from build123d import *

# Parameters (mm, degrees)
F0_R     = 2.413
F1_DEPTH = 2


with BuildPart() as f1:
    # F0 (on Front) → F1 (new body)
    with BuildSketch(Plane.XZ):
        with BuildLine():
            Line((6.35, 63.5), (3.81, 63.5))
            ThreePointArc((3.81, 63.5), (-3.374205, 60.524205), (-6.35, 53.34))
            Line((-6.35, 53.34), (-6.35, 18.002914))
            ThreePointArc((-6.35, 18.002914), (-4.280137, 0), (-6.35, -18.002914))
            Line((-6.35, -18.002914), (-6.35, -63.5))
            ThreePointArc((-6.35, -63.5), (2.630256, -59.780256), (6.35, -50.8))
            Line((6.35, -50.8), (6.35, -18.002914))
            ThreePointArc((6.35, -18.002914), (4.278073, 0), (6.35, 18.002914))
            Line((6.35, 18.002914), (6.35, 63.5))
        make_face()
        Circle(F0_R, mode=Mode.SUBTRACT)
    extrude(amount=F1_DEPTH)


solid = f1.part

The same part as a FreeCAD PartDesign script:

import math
import FreeCAD as App
import Part
import Sketcher
from FreeCAD import Vector
Q = App.Units.Quantity

doc = App.newDocument("Part")
body = doc.addObject("PartDesign::Body", "Body")

# Sketch on XZ plane
sketch1 = body.newObject("Sketcher::SketchObject", "Sketch")
sketch1.AttachmentSupport = (doc.getObject("XZ_Plane"), [""])
sketch1.MapMode = "FlatFace"
sketch1.addGeometry([
    Part.LineSegment(Vector(6.3, 63.5, 0), Vector(3.8, 63.5, 0)),  # 0
    Part.ArcOfCircle(Part.Circle(Vector(3.8, 53.3, 0), Vector(0, 0, 1), 10.2), math.radians(90), math.radians(180)),  # 1
    Part.LineSegment(Vector(-6.3, 53.3, 0), Vector(-6.3, 18, 0)),  # 2
    Part.ArcOfCircle(Part.Circle(Vector(-83.6, 0, 0), Vector(0, 0, 1), 79.3), math.radians(-13), math.radians(13)),  # 3
    Part.LineSegment(Vector(-6.3, -18, 0), Vector(-6.3, -63.5, 0)),  # 4
    Part.ArcOfCircle(Part.Circle(Vector(-6.4, -50.8, 0), Vector(0, 0, 1), 12.7), math.radians(-90), math.radians(0)),  # 5
    Part.LineSegment(Vector(6.3, -50.8, 0), Vector(6.3, -18, 0)),  # 6
    Part.ArcOfCircle(Part.Circle(Vector(83.5, 0, 0), Vector(0, 0, 1), 79.2), math.radians(167), math.radians(193)),  # 7
    Part.LineSegment(Vector(6.3, 18, 0), Vector(6.3, 63.5, 0)),  # 8
    Part.Circle(Vector(0, 0, 0), Vector(0, 0, 1), 2.4),  # 9
], False)
sketch1.addConstraint([
    Sketcher.Constraint("Tangent", 0, 2, 1, 1),
    Sketcher.Constraint("Tangent", 1, 2, 2, 1),
    Sketcher.Constraint("Coincident", 2, 2, 3, 2),
    Sketcher.Constraint("Coincident", 3, 1, 4, 1),
    Sketcher.Constraint("Coincident", 4, 2, 5, 1),
    Sketcher.Constraint("Tangent", 5, 2, 6, 1),
    Sketcher.Constraint("Coincident", 6, 2, 7, 2),
    Sketcher.Constraint("Coincident", 7, 1, 8, 1),
    Sketcher.Constraint("Coincident", 8, 2, 0, 1),
    Sketcher.Constraint("Horizontal", 0),
    Sketcher.Constraint("Vertical", 2),
    Sketcher.Constraint("Vertical", 4),
    Sketcher.Constraint("Vertical", 6),
    Sketcher.Constraint("Vertical", 8),
    Sketcher.Constraint("Coincident", 9, 3, -1, 1),
    Sketcher.Constraint("Symmetric", 2, 2, 6, 2, -1, 1),
    Sketcher.Constraint("Symmetric", 3, 1, 7, 1, -1, 1),
    Sketcher.Constraint("Symmetric", 3, 1, 6, 2, -2),
    Sketcher.Constraint("Vertical", 5, 3, 1, 2),
    Sketcher.Constraint("Equal", 4, 8),
    Sketcher.Constraint("Radius", 1, Q("0.4 in")),
    Sketcher.Constraint("Radius", 5, Q("0.5 in")),
    Sketcher.Constraint("Diameter", 9, Q("0.19 in")),
    Sketcher.Constraint("DistanceY", 5, 3, -1, 1, Q("2 in")),
    Sketcher.Constraint("Radius", 3, 79.326324),
    Sketcher.Constraint("Radius", 7, 79.249364),
    Sketcher.Constraint("DistanceY", 2, 2, 2, 1, 35.337086),
])
pad1 = body.newObject("PartDesign::Pad", "Pad")
pad1.Profile = sketch1
pad1.Length = 2

doc.recompute()
